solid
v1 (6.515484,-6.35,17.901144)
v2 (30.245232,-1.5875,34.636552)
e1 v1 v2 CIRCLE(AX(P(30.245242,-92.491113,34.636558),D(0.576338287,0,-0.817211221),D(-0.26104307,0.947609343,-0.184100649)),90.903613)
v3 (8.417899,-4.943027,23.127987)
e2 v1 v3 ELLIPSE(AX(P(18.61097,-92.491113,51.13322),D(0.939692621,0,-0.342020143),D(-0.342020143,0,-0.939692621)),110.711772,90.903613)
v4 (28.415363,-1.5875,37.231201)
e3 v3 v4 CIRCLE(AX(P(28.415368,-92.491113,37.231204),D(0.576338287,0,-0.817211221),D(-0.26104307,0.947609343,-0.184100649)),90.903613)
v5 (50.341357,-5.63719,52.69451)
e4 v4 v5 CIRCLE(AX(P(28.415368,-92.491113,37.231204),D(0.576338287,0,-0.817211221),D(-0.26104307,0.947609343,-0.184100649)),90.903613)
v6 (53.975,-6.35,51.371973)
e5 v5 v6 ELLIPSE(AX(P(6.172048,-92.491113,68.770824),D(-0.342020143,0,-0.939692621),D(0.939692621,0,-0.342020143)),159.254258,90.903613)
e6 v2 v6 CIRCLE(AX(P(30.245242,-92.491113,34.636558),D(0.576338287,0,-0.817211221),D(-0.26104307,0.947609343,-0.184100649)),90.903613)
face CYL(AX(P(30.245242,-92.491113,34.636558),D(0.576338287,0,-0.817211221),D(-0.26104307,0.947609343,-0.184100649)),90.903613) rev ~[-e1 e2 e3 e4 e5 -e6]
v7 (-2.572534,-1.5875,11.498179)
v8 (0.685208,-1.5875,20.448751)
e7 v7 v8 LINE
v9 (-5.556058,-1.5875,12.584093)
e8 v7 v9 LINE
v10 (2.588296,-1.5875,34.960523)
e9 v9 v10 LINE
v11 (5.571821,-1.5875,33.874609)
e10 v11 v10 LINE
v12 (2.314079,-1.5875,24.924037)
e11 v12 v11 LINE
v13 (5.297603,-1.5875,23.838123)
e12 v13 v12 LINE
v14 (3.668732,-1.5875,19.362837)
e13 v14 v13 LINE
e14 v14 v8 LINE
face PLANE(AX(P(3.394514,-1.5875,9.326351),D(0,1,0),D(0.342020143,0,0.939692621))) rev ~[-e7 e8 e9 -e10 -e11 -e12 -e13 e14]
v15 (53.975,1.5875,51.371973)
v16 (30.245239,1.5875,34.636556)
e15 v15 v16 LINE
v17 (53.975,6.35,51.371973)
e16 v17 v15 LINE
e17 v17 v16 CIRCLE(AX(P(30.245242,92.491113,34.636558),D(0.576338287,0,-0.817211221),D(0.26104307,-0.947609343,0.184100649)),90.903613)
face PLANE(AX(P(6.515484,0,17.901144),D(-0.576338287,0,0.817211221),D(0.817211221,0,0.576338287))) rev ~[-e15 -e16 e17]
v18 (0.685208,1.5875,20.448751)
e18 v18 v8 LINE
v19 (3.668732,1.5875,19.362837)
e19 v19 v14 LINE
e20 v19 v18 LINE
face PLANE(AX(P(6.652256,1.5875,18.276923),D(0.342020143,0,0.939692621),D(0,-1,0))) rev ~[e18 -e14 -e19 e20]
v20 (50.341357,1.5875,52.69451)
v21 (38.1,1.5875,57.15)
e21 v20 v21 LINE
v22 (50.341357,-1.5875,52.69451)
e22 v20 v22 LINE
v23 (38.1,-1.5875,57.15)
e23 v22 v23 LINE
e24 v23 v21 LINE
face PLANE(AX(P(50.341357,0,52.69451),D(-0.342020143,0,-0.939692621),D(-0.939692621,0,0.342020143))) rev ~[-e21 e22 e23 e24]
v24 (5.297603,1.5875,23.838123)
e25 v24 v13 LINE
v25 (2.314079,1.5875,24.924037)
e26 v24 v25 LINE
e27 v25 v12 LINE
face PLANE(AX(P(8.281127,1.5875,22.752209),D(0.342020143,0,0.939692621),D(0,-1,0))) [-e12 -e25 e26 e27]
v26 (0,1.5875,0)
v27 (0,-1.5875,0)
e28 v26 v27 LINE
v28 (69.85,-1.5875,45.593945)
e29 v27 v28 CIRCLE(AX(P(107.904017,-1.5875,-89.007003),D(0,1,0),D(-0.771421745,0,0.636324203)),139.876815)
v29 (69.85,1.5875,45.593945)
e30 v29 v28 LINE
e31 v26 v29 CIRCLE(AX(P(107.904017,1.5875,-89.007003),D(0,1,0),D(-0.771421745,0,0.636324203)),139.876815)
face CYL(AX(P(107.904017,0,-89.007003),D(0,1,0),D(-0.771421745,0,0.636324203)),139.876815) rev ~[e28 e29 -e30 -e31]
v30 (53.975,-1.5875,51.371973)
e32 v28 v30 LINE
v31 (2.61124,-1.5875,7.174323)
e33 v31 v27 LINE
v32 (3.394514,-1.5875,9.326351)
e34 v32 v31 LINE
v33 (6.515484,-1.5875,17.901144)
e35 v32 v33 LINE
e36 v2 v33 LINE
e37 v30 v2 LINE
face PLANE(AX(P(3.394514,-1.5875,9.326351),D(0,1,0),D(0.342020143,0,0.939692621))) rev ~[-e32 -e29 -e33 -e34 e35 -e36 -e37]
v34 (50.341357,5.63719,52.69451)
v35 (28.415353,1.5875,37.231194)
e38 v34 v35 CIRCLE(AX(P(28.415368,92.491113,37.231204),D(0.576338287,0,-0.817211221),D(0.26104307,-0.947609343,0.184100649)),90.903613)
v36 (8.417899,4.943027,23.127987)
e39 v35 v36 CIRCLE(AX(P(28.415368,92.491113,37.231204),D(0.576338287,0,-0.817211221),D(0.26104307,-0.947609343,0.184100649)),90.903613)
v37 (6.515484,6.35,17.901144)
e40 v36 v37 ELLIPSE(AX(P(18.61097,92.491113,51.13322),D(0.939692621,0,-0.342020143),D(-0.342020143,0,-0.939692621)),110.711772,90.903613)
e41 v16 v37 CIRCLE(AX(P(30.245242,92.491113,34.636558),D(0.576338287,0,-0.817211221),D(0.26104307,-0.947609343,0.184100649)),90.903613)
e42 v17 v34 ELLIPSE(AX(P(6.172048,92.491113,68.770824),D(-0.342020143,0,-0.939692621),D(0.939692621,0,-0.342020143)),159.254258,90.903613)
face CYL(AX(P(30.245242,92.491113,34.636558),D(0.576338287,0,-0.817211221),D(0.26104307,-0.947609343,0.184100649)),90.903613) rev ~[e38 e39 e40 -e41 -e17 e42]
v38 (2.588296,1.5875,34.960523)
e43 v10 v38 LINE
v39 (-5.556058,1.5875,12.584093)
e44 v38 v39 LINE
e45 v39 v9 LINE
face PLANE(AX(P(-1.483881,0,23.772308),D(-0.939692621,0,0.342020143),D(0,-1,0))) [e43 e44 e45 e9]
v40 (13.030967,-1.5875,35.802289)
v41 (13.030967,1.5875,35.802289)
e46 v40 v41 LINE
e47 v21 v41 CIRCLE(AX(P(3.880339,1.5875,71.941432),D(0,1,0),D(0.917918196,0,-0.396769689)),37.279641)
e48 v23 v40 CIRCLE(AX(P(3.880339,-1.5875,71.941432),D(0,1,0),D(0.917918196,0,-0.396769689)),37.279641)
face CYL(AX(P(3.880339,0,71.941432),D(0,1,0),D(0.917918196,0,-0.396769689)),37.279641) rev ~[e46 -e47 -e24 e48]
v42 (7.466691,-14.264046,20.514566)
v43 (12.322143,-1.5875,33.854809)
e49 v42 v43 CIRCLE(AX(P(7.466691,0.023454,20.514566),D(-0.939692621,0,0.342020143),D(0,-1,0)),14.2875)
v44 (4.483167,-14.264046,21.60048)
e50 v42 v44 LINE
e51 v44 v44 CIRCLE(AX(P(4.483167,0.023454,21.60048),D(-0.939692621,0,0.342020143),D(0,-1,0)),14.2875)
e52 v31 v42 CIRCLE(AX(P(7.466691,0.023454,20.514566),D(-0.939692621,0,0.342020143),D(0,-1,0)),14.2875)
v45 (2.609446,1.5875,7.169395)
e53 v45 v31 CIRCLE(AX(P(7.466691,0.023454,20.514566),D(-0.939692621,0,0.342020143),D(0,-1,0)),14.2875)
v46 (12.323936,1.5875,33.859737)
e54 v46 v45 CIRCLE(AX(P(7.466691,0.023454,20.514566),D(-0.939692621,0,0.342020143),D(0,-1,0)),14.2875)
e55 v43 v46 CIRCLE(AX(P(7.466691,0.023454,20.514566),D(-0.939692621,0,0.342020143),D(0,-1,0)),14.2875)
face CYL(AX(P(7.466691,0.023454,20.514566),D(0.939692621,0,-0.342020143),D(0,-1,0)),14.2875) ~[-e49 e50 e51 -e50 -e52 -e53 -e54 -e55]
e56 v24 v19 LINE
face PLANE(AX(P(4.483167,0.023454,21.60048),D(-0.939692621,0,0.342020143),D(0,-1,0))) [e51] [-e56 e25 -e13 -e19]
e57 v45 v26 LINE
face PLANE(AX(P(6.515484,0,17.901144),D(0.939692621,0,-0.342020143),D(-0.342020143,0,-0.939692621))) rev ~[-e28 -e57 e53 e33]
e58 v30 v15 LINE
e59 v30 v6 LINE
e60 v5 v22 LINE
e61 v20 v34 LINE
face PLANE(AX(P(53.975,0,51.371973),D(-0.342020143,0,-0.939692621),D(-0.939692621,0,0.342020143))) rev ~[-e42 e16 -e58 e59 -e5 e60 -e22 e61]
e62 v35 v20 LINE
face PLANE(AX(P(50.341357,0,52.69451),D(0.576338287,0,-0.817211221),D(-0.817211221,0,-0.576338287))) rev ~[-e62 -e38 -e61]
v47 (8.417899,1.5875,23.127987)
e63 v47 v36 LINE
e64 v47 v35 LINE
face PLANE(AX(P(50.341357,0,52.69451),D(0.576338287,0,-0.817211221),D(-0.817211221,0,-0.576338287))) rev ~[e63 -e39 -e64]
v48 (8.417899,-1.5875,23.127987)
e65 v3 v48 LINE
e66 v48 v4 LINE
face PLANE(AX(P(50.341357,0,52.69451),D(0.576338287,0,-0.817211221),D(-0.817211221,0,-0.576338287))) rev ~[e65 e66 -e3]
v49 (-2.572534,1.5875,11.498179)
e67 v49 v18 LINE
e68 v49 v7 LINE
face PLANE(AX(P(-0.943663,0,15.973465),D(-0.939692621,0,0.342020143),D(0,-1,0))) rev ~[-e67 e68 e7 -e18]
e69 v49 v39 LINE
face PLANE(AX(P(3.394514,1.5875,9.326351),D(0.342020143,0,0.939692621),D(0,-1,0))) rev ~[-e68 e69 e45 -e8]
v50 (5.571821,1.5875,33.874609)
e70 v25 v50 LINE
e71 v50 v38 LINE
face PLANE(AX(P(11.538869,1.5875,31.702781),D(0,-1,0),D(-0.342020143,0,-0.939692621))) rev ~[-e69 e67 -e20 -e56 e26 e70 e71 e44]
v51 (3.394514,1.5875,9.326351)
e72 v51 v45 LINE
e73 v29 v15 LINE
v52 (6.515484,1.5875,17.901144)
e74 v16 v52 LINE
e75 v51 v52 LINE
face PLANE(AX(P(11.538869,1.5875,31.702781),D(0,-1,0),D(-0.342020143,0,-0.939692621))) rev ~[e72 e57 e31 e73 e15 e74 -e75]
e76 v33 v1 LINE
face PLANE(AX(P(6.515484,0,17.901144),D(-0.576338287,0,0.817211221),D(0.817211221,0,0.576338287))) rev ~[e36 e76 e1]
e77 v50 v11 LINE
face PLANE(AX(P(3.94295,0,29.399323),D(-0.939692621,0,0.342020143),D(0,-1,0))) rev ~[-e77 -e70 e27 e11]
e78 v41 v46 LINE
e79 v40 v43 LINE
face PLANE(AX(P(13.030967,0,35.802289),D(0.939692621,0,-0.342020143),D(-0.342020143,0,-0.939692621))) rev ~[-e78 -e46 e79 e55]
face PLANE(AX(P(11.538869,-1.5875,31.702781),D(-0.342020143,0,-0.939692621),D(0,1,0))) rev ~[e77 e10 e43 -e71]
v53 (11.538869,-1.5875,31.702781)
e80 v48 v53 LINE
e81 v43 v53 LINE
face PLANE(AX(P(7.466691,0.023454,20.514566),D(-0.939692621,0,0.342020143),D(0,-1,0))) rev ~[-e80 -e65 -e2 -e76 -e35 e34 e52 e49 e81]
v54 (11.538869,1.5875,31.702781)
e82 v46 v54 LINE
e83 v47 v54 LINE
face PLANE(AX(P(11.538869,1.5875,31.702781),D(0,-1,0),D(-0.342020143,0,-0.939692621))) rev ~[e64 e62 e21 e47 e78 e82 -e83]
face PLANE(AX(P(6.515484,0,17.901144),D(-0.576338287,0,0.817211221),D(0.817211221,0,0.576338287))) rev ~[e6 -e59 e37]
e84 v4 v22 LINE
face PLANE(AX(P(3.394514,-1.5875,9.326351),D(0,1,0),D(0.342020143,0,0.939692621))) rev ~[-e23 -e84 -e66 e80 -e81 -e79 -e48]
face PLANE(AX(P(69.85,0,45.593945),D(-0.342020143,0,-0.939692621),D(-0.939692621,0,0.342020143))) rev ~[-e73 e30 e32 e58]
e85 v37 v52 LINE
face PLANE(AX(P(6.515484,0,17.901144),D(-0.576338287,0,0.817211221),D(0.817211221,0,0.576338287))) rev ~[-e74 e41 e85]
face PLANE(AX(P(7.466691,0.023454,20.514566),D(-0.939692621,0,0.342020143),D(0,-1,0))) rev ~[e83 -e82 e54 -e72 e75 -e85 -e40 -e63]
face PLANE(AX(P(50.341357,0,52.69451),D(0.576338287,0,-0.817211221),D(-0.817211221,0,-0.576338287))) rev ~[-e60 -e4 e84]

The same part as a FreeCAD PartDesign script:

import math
import FreeCAD as App
import Part
import Sketcher
from FreeCAD import Vector
Q = App.Units.Quantity


def add_polygon(sketch, points):
    """Adds a closed chain of lines whose ends are joined by coincident constraints."""
    first, n = sketch.GeometryCount, len(points)
    for a, b in zip(points, points[1:] + points[:1]):
        sketch.addGeometry(Part.LineSegment(App.Vector(*a, 0), App.Vector(*b, 0)), False)
    for i in range(n):
        sketch.addConstraint(Sketcher.Constraint("Coincident", first + i, 2, first + (i + 1) % n, 1))

doc = App.newDocument("Part")
body = doc.addObject("PartDesign::Body", "Body")

sketch1 = doc.addObject("Sketcher::SketchObject", "Sketch")
body.addObject(sketch1)
sketch1.AttachmentSupport = (doc.XZ_Plane, [""])
sketch1.MapMode = "FlatFace"
sketch1.addGeometry(Part.LineSegment(Vector(6.515484, 17.901144, 0), Vector(0, 0, 0)), False)
sketch1.addGeometry(Part.ArcOfCircle(Part.Circle(Vector(107.904017, -89.007003, 0), Vector(0, 0, 1), 139.876815), math.radians(105.786515), math.radians(140.481733)), False)
sketch1.addGeometry(Part.LineSegment(Vector(69.85, 45.593945, 0), Vector(53.975, 51.371973, 0)), False)
sketch1.addGeometry(Part.LineSegment(Vector(53.975, 51.371973, 0), Vector(6.515484, 17.901144, 0)), False)
sketch1.addConstraint(Sketcher.Constraint("Coincident", 0, 2, 1, 2))
sketch1.addConstraint(Sketcher.Constraint("Coincident", 1, 1, 2, 1))
sketch1.addConstraint(Sketcher.Constraint("Coincident", 2, 2, 3, 1))
sketch1.addConstraint(Sketcher.Constraint("Coincident", 3, 2, 0, 1))
sketch1.addConstraint(Sketcher.Constraint("Coincident", 0, 2, -1, 1))
sketch1.addConstraint(Sketcher.Constraint("Perpendicular", 0, 2))
sketch1.addConstraint(Sketcher.Constraint("Angle", 0, Q("-110 deg")))
sketch1.addConstraint(Sketcher.Constraint("Distance", 0, Q("0.75 in")))
sketch1.addConstraint(Sketcher.Constraint("DistanceX", -1, 1, 1, 1, Q("2.75 in")))
sketch1.addConstraint(Sketcher.Constraint("DistanceX", -1, 1, 2, 2, Q("2.125 in")))
sketch1.addConstraint(Sketcher.Constraint("Radius", 1, Q("139.876815 mm")))
sketch1.addConstraint(Sketcher.Constraint("DistanceY", 3, 2, 1, 1, Q("27.692801 mm")))
pad1 = doc.addObject("PartDesign::Pad", "Pad")
body.addObject(pad1)
pad1.Profile = sketch1
pad1.Type = "TwoLengths"
pad1.Length = Q("0.0625 in")
pad1.Length2 = Q("0.0625 in")
pad1.Reversed = True
body2 = doc.addObject("PartDesign::Body", "Body001")

sketch2 = doc.addObject("Sketcher::SketchObject", "Sketch001")
body2.addObject(sketch2)
sketch2.AttachmentSupport = (doc.getObject("XZ_Plane001"), [""])
sketch2.MapMode = "FlatFace"
sketch2.addGeometry(Part.LineSegment(Vector(13.030967, 35.802289, 0), Vector(8.417899, 23.127987, 0)), False)
sketch2.addGeometry(Part.LineSegment(Vector(8.417899, 23.127987, 0), Vector(50.341357, 52.69451, 0)), False)
sketch2.addGeometry(Part.LineSegment(Vector(50.341357, 52.69451, 0), Vector(38.1, 57.15, 0)), False)
sketch2.addGeometry(Part.ArcOfCircle(Part.Circle(Vector(3.880339, 71.941432, 0), Vector(0, 0, 1), 37.279641), math.radians(-75.791031), math.radians(-23.376391)), False)
sketch2.addConstraint(Sketcher.Constraint("Coincident", 0, 2, 1, 1))
sketch2.addConstraint(Sketcher.Constraint("Coincident", 1, 2, 2, 1))
sketch2.addConstraint(Sketcher.Constraint("Coincident", 2, 2, 3, 2))
sketch2.addConstraint(Sketcher.Constraint("Coincident", 3, 1, 0, 1))
sketch2.addConstraint(Sketcher.Constraint("Perpendicular", 0, 2))
sketch2.addConstraint(Sketcher.Constraint("Angle", 0, Q("-110 deg")))
sketch2.addConstraint(Sketcher.Constraint("DistanceX", -1, 1, 2, 2, Q("1.5 in")))
sketch2.addConstraint(Sketcher.Constraint("DistanceY", -1, 1, 2, 2, Q("2.25 in")))
sketch2.addConstraint(Sketcher.Constraint("Radius", 3, Q("37.279641 mm")))
sketch2.addConstraint(Sketcher.Constraint("DistanceX", -1, 1, 0, 2, Q("8.417899 mm")))
sketch2.addConstraint(Sketcher.Constraint("DistanceY", 0, 2, 3, 1, Q("12.674301 mm")))
sketch2.addConstraint(Sketcher.Constraint("Distance", 1, Q("51.30064 mm")))
sketch2.addConstraint(Sketcher.Constraint("Distance", 2, Q("13.02698 mm")))
pad2 = doc.addObject("PartDesign::Pad", "Pad001")
body2.addObject(pad2)
pad2.Profile = sketch2
pad2.Type = "TwoLengths"
pad2.Length = Q("0.0625 in")
pad2.Length2 = Q("0.0625 in")
pad2.Reversed = True
body3 = doc.addObject("PartDesign::Body", "Body002")

sketch3 = doc.addObject("Sketcher::SketchObject", "Sketch002")
body3.addObject(sketch3)
sketch3.AttachmentSupport = (doc.getObject("XZ_Plane002"), [""])
sketch3.MapMode = "FlatFace"
add_polygon(sketch3, [(8.417899, 23.127987), (6.515484, 17.901144), (53.975, 51.371973), (50.341357, 52.69451)])
sketch3.addConstraint(Sketcher.Constraint("Perpendicular", 0, 2))
sketch3.addConstraint(Sketcher.Constraint("Parallel", 1, 3))
sketch3.addConstraint(Sketcher.Constraint("Angle", 0, Q("-110 deg")))
sketch3.addConstraint(Sketcher.Constraint("DistanceX", -1, 1, 1, 2, Q("2.125 in")))
sketch3.addConstraint(Sketcher.Constraint("DistanceX", -1, 1, 3, 2, Q("8.417899 mm")))
sketch3.addConstraint(Sketcher.Constraint("Distance", 0, Q("5.56229 mm")))
sketch3.addConstraint(Sketcher.Constraint("Distance", 1, Q("58.074969 mm")))
sketch3.addConstraint(Sketcher.Constraint("DistanceY", -1, 1, 2, 2, Q("52.69451 mm")))
pad3 = doc.addObject("PartDesign::Pad", "Pad002")
body3.addObject(pad3)
pad3.Profile = sketch3
pad3.Type = "TwoLengths"
pad3.Length = Q("0.25 in")
pad3.Length2 = Q("0.25 in")
pad3.Reversed = True

sketch4 = doc.addObject("Sketcher::SketchObject", "Sketch003")
body3.addObject(sketch4)
sketch4.Placement = App.Placement(Vector(-6.267041, 0, 8.886268), App.Rotation(Vector(0.817211221, 0, 0.576338287), Vector(0, -1.000000001, 0), Vector(0.576338287, 0, -0.817211221), "ZXY"))
sketch4.addGeometry(Part.LineSegment(Vector(73.71661, 6.35, 0), Vector(15.641641, 6.35, 0)), False)
sketch4.addGeometry(Part.ArcOfCircle(Part.Circle(Vector(44.679126, 92.491113, 0), Vector(0, 0, 1), 90.903613), math.radians(-108.628553), math.radians(-71.371447)), False)
sketch4.addGeometry(Part.ArcOfCircle(Part.Circle(Vector(44.679126, -92.491113, 0), Vector(0, 0, 1), 90.903613), math.radians(71.371447), math.radians(108.628553)), False)
sketch4.addGeometry(Part.LineSegment(Vector(15.641641, -6.35, 0), Vector(73.71661, -6.35, 0)), False)
sketch4.addConstraint(Sketcher.Constraint("Coincident", 0, 1, 1, 2))
sketch4.addConstraint(Sketcher.Constraint("Coincident", 1, 1, 0, 2))
sketch4.addConstraint(Sketcher.Constraint("Coincident", 2, 1, 3, 2))
sketch4.addConstraint(Sketcher.Constraint("Coincident", 3, 1, 2, 2))
sketch4.addConstraint(Sketcher.Constraint("Horizontal", 0))
sketch4.addConstraint(Sketcher.Constraint("Horizontal", 3))
sketch4.addConstraint(Sketcher.Constraint("Equal", 1, 2))
sketch4.addConstraint(Sketcher.Constraint("Symmetric", 1, 3, 2, 3, -1))
sketch4.addConstraint(Sketcher.Constraint("Vertical", 0, 1, 2, 1))
sketch4.addConstraint(Sketcher.Constraint("DistanceY", 2, 1, 0, 1, Q("0.5 in")))
sketch4.addConstraint(Sketcher.Constraint("Radius", 1, Q("90.903613 mm")))
sketch4.addConstraint(Sketcher.Constraint("DistanceX", 0, 2, 0, 1, Q("58.074969 mm")))
sketch4.addConstraint(Sketcher.Constraint("DistanceX", -1, 1, 0, 1, Q("73.71661 mm")))
pocket1 = doc.addObject("PartDesign::Pocket", "Pocket")
body3.addObject(pocket1)
pocket1.Profile = sketch4
pocket1.Length = Q("0.125 in")
doc.recompute()

boolean = doc.addObject("PartDesign::Boolean", "Boolean")
body2.addObject(boolean)
boolean.Type = "Fuse"
boolean.addObjects([body3])
doc.recompute()

boolean2 = doc.addObject("PartDesign::Boolean", "Boolean001")
body2.addObject(boolean2)
boolean2.Type = "Fuse"
boolean2.addObjects([body])

sketch5 = doc.addObject("Sketcher::SketchObject", "Sketch004")
body2.addObject(sketch5)
sketch5.Placement = App.Placement(Vector(0, 0, 0), App.Rotation(Vector(0, -1, 0), Vector(0.342020143, 0, 0.939692621), Vector(-0.939692621, 0, 0.342020143), "ZXY"))
add_polygon(sketch5, [(1.5875, 33.737395), (-1.5875, 33.737395), (-1.5875, 9.924895), (1.5875, 9.924895)])
sketch5.addConstraint(Sketcher.Constraint("Horizontal", 0))
sketch5.addConstraint(Sketcher.Constraint("Vertical", 1))
sketch5.addConstraint(Sketcher.Constraint("Horizontal", 2))
sketch5.addConstraint(Sketcher.Constraint("Vertical", 3))
sketch5.addConstraint(Sketcher.Constraint("DistanceX", 0, 2, 0, 1, Q("0.125 in")))
sketch5.addConstraint(Sketcher.Constraint("DistanceY", 1, 2, 1, 1, Q("0.9375 in")))
sketch5.addConstraint(Sketcher.Constraint("DistanceX", 0, 2, -1, 1, Q("0.0625 in")))
sketch5.addConstraint(Sketcher.Constraint("DistanceY", -1, 1, 0, 2, Q("33.737395 mm")))
pad4 = doc.addObject("PartDesign::Pad", "Pad003")
body2.addObject(pad4)
pad4.Profile = sketch5
pad4.Length = Q("0.375 in")

sketch6 = doc.addObject("Sketcher::SketchObject", "Sketch005")
body2.addObject(sketch6)
sketch6.Placement = App.Placement(Vector(0, 0, 0), App.Rotation(Vector(0, -1, 0), Vector(0.342020143, 0, 0.939692621), Vector(-0.939692621, 0, 0.342020143), "ZXY"))
add_polygon(sketch6, [(-1.5875, 33.737395), (-1.5875, 24.212395), (1.5875, 24.212395), (1.5875, 33.737395)])
add_polygon(sketch6, [(-1.5875, 19.449895), (-1.5875, 9.924895), (1.5875, 9.924895), (1.5875, 19.449895)])
sketch6.addConstraint(Sketcher.Constraint("Vertical", 0))
sketch6.addConstraint(Sketcher.Constraint("Horizontal", 1))
sketch6.addConstraint(Sketcher.Constraint("Vertical", 2))
sketch6.addConstraint(Sketcher.Constraint("Horizontal", 3))
sketch6.addConstraint(Sketcher.Constraint("Vertical", 4))
sketch6.addConstraint(Sketcher.Constraint("Horizontal", 5))
sketch6.addConstraint(Sketcher.Constraint("Vertical", 6))
sketch6.addConstraint(Sketcher.Constraint("Horizontal", 7))
sketch6.addConstraint(Sketcher.Constraint("Vertical", 3, 2, 4, 2))
sketch6.addConstraint(Sketcher.Constraint("Vertical", 2, 2, 5, 2))
sketch6.addConstraint(Sketcher.Constraint("Equal", 2, 4))
sketch6.addConstraint(Sketcher.Constraint("DistanceX", 1, 1, 1, 2, Q("0.125 in")))
sketch6.addConstraint(Sketcher.Constraint("DistanceY", 0, 2, 0, 1, Q("0.375 in")))
sketch6.addConstraint(Sketcher.Constraint("DistanceX", 0, 2, -1, 1, Q("0.0625 in")))
sketch6.addConstraint(Sketcher.Constraint("DistanceY", 4, 2, 0, 2, Q("0.5625 in")))
sketch6.addConstraint(Sketcher.Constraint("DistanceY", -1, 1, 0, 2, Q("24.212395 mm")))
pocket2 = doc.addObject("PartDesign::Pocket", "Pocket001")
body2.addObject(pocket2)
pocket2.Profile = sketch6
pocket2.Length = Q("0.25 in")
pocket2.Reversed = True

sketch7 = doc.addObject("Sketcher::SketchObject", "Sketch006")
body2.addObject(sketch7)
sketch7.Placement = App.Placement(Vector(0, 0, 0), App.Rotation(Vector(0, -1, 0), Vector(0.342020143, 0, 0.939692621), Vector(-0.939692621, 0, 0.342020143), "ZXY"))
sketch7.addGeometry(Part.Circle(Vector(-0.023454, 21.831145, 0), Vector(0, 0, 1), 14.2875), False)
sketch7.addConstraint(Sketcher.Constraint("Diameter", 0, Q("1.125 in")))
sketch7.addConstraint(Sketcher.Constraint("DistanceX", 0, 3, -1, 1, Q("0.023454 mm")))
sketch7.addConstraint(Sketcher.Constraint("DistanceY", -1, 1, 0, 3, Q("21.831145 mm")))
pad5 = doc.addObject("PartDesign::Pad", "Pad004")
body2.addObject(pad5)
pad5.Profile = sketch7
pad5.Length = Q("0.125 in")

doc.recompute()
